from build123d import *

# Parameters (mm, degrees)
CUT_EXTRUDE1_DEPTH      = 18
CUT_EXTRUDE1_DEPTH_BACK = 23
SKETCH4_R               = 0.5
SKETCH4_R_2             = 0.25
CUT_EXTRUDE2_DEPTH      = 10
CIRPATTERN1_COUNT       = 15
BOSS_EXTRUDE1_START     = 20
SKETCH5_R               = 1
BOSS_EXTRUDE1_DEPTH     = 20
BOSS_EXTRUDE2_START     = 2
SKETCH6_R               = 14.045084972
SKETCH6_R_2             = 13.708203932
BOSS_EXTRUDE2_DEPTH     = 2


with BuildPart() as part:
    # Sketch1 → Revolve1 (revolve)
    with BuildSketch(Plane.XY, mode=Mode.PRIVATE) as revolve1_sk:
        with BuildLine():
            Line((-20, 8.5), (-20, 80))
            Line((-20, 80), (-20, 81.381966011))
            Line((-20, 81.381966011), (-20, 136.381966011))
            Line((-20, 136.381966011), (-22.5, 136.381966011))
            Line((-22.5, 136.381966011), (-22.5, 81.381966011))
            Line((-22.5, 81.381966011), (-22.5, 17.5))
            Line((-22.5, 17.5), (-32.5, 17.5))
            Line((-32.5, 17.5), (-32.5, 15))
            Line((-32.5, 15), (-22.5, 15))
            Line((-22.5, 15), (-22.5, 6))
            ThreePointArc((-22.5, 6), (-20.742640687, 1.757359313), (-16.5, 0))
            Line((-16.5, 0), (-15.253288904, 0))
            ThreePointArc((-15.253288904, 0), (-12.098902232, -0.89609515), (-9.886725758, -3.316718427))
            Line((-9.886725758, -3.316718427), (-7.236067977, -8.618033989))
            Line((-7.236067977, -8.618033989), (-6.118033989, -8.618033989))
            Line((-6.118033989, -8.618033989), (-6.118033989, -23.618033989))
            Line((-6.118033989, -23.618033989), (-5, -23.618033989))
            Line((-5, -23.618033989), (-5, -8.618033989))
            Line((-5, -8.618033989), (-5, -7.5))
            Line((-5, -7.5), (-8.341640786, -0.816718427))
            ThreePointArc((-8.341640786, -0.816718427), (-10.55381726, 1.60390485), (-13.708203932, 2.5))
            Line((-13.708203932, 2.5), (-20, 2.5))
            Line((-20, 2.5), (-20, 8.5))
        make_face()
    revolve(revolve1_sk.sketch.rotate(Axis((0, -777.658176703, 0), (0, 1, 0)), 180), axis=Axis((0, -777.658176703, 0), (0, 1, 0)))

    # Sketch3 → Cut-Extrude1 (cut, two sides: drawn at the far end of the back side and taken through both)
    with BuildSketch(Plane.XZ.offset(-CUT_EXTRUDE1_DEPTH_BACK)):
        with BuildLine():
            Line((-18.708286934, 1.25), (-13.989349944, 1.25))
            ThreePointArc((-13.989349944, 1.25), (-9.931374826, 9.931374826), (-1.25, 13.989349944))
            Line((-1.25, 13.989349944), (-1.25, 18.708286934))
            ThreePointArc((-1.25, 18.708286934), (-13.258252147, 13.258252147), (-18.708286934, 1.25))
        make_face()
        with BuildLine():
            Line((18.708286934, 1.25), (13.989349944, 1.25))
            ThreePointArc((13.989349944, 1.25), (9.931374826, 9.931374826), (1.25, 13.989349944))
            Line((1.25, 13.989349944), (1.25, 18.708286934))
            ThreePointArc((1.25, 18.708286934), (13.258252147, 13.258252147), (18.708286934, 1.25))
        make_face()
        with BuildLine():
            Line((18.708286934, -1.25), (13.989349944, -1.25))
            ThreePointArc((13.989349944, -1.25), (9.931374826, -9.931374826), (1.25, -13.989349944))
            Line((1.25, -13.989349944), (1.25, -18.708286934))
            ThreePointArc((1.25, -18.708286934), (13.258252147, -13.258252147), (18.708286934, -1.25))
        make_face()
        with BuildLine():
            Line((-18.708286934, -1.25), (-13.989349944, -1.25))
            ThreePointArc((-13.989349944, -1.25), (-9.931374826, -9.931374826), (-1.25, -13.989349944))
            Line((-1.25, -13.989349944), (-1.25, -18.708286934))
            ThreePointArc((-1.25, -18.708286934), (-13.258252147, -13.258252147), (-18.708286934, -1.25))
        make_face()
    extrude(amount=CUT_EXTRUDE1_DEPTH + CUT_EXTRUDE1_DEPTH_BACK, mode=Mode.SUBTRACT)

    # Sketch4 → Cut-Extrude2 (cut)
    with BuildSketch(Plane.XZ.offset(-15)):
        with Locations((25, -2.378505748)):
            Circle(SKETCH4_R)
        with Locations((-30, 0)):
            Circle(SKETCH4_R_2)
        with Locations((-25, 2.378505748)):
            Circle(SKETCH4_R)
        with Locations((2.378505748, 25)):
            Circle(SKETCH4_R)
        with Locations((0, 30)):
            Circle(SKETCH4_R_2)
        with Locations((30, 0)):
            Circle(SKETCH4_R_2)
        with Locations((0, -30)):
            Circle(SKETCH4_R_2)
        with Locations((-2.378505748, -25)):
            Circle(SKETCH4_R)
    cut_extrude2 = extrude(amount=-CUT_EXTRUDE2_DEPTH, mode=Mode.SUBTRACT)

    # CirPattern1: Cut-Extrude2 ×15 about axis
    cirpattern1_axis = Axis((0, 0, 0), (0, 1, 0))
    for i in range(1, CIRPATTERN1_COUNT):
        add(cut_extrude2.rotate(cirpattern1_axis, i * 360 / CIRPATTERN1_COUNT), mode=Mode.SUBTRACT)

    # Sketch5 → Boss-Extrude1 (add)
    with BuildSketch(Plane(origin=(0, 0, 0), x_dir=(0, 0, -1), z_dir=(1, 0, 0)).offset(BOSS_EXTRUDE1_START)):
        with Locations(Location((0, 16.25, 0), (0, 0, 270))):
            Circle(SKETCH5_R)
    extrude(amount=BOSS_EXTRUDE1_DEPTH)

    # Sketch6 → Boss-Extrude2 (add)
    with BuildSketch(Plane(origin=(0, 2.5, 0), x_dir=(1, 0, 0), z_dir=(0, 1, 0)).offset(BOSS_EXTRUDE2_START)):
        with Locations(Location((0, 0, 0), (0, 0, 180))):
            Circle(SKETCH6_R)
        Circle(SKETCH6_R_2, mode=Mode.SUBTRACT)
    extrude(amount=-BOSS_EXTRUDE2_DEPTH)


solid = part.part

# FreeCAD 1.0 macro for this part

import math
import FreeCAD as App
import Part
import Sketcher

V = App.Vector
Q = App.Units.Quantity

doc = App.newDocument("Part")
body = doc.addObject("PartDesign::Body", "Body")

sketch1 = doc.addObject("Sketcher::SketchObject", "Sketch")
body.addObject(sketch1)
sketch1.AttachmentSupport = (doc.XY_Plane, [""])
sketch1.MapMode = "FlatFace"
sketch1.addGeometry([
    Part.LineSegment(V(-20, 136.4, 0), V(-22.5, 136.4, 0)),
    Part.LineSegment(V(-22.5, 136.4, 0), V(-22.5, 17.5, 0)),
    Part.LineSegment(V(-22.5, 17.5, 0), V(-32.5, 17.5, 0)),
    Part.LineSegment(V(-32.5, 17.5, 0), V(-32.5, 15, 0)),
    Part.LineSegment(V(-32.5, 15, 0), V(-22.5, 15, 0)),
    Part.LineSegment(V(-22.5, 15, 0), V(-22.5, 6, 0)),
    Part.ArcOfCircle(Part.Circle(V(-16.5, 6, 0), V(0, 0, 1), 6), math.radians(180), math.radians(270)),
    Part.LineSegment(V(-16.5, 0, 0), V(-15.3, 0, 0)),
    Part.ArcOfCircle(Part.Circle(V(-15.3, -6, 0), V(0, 0, 1), 6), math.radians(27), math.radians(90)),
    Part.LineSegment(V(-9.9, -3.3, 0), V(-7.2, -8.6, 0)),
    Part.LineSegment(V(-7.2, -8.6, 0), V(-6.1, -8.6, 0)),
    Part.LineSegment(V(-6.1, -8.6, 0), V(-6.1, -23.6, 0)),
    Part.LineSegment(V(-6.1, -23.6, 0), V(-5, -23.6, 0)),
    Part.LineSegment(V(-5, -23.6, 0), V(-5, -7.5, 0)),
    Part.LineSegment(V(-5, -7.5, 0), V(-8.3, -0.8, 0)),
    Part.ArcOfCircle(Part.Circle(V(-13.7, -3.5, 0), V(0, 0, 1), 6), math.radians(27), math.radians(90)),
    Part.LineSegment(V(-13.7, 2.5, 0), V(-20, 2.5, 0)),
    Part.LineSegment(V(-20, 2.5, 0), V(-20, 136.4, 0)),
], False)
sketch1.addConstraint([
    Sketcher.Constraint("Coincident", 0, 2, 1, 1),
    Sketcher.Constraint("Coincident", 1, 2, 2, 1),
    Sketcher.Constraint("Coincident", 2, 2, 3, 1),
    Sketcher.Constraint("Coincident", 3, 2, 4, 1),
    Sketcher.Constraint("Coincident", 4, 2, 5, 1),
    Sketcher.Constraint("Tangent", 5, 2, 6, 1),
    Sketcher.Constraint("Tangent", 6, 2, 7, 1),
    Sketcher.Constraint("Tangent", 7, 2, 8, 2),
    Sketcher.Constraint("Tangent", 8, 1, 9, 1),
    Sketcher.Constraint("Coincident", 9, 2, 10, 1),
    Sketcher.Constraint("Coincident", 10, 2, 11, 1),
    Sketcher.Constraint("Coincident", 11, 2, 12, 1),
    Sketcher.Constraint("Coincident", 12, 2, 13, 1),
    Sketcher.Constraint("Coincident", 13, 2, 14, 1),
    Sketcher.Constraint("Tangent", 14, 2, 15, 1),
    Sketcher.Constraint("Tangent", 15, 2, 16, 1),
    Sketcher.Constraint("Coincident", 16, 2, 17, 1),
    Sketcher.Constraint("Coincident", 17, 2, 0, 1),
    Sketcher.Constraint("Horizontal", 0),
    Sketcher.Constraint("Vertical", 1),
    Sketcher.Constraint("Horizontal", 2),
    Sketcher.Constraint("Vertical", 3),
    Sketcher.Constraint("Horizontal", 4),
    Sketcher.Constraint("Vertical", 5),
    Sketcher.Constraint("Horizontal", 7),
    Sketcher.Constraint("Horizontal", 10),
    Sketcher.Constraint("Vertical", 11),
    Sketcher.Constraint("Horizontal", 12),
    Sketcher.Constraint("Vertical", 13),
    Sketcher.Constraint("Horizontal", 16),
    Sketcher.Constraint("Vertical", 17),
    Sketcher.Constraint("Equal", 6, 8),
    Sketcher.Constraint("Equal", 8, 15),
    Sketcher.Constraint("PointOnObject", 6, 2, -1),
    Sketcher.Constraint("Parallel", 9, 14),
    Sketcher.Constraint("Vertical", 1, 2, 4, 2),
    Sketcher.Constraint("Equal", 10, 12),
    Sketcher.Constraint("Equal", 0, 3),
    Sketcher.Constraint("Radius", 6, Q("6 mm")),
    Sketcher.Constraint("DistanceX", 2, 2, 2, 1, Q("10 mm")),
    Sketcher.Constraint("DistanceY", 5, 2, 5, 1, Q("9 mm")),
    Sketcher.Constraint("DistanceY", 11, 2, 11, 1, Q("15 mm")),
    Sketcher.Constraint("DistanceX", 0, 2, 0, 1, Q("2.5 mm")),
    Sketcher.Constraint("DistanceX", 12, 2, -1, 1, Q("5 mm")),
    Sketcher.Constraint("DistanceX", 16, 2, -1, 1, Q("20 mm")),
    Sketcher.Constraint("DistanceY", 15, 3, 1, 2, Q("21 mm")),
    Sketcher.Constraint("DistanceY", 13, 2, 15, 3, Q("4 mm")),
    Sketcher.Constraint("DistanceX", 7, 1, 7, 2, Q("1.246711 mm")),
    Sketcher.Constraint("Distance", 9, Q("5.927051 mm")),
    Sketcher.Constraint("DistanceX", 10, 1, 10, 2, Q("1.118034 mm")),
    Sketcher.Constraint("DistanceY", 1, 2, 1, 1, Q("118.881966 mm")),
])
revolution = doc.addObject("PartDesign::Revolution", "Revolution")
body.addObject(revolution)
revolution.Profile = sketch1
revolution.ReferenceAxis = (sketch1, ["V_Axis"])
revolution.Angle = 360

sketch2 = doc.addObject("Sketcher::SketchObject", "Sketch001")
body.addObject(sketch2)
sketch2.AttachmentSupport = (doc.XZ_Plane, [""])
sketch2.MapMode = "FlatFace"
sketch2.addGeometry([
    Part.LineSegment(V(-18.7, 1.2, 0), V(-14, 1.2, 0)),
    Part.ArcOfCircle(Part.Circle(V(0, 0, 0), V(0, 0, 1), 14), math.radians(95), math.radians(175)),
    Part.LineSegment(V(-1.2, 14, 0), V(-1.2, 18.7, 0)),
    Part.ArcOfCircle(Part.Circle(V(0, 0, 0), V(0, 0, 1), 18.8), math.radians(94), math.radians(176)),
    Part.LineSegment(V(14, 1.2, 0), V(18.7, 1.2, 0)),
    Part.ArcOfCircle(Part.Circle(V(0, 0, 0), V(0, 0, 1), 18.8), math.radians(4), math.radians(86)),
    Part.LineSegment(V(1.2, 18.7, 0), V(1.2, 14, 0)),
    Part.ArcOfCircle(Part.Circle(V(0, 0, 0), V(0, 0, 1), 14), math.radians(5), math.radians(85)),
    Part.LineSegment(V(18.7, -1.2, 0), V(14, -1.2, 0)),
    Part.ArcOfCircle(Part.Circle(V(0, 0, 0), V(0, 0, 1), 14), math.radians(-85), math.radians(-5)),
    Part.LineSegment(V(1.2, -14, 0), V(1.2, -18.7, 0)),
    Part.ArcOfCircle(Part.Circle(V(0, 0, 0), V(0, 0, 1), 18.8), math.radians(-86), math.radians(-4)),
    Part.LineSegment(V(-14, -1.2, 0), V(-18.7, -1.2, 0)),
    Part.ArcOfCircle(Part.Circle(V(0, 0, 0), V(0, 0, 1), 18.8), math.radians(-176), math.radians(-94)),
    Part.LineSegment(V(-1.2, -18.7, 0), V(-1.2, -14, 0)),
    Part.ArcOfCircle(Part.Circle(V(0, 0, 0), V(0, 0, 1), 14), math.radians(-175), math.radians(-95)),
], False)
sketch2.addConstraint([
    Sketcher.Constraint("Coincident", 0, 2, 1, 2),
    Sketcher.Constraint("Coincident", 1, 1, 2, 1),
    Sketcher.Constraint("Coincident", 2, 2, 3, 1),
    Sketcher.Constraint("Coincident", 3, 2, 0, 1),
    Sketcher.Constraint("Coincident", 4, 2, 5, 1),
    Sketcher.Constraint("Coincident", 5, 2, 6, 1),
    Sketcher.Constraint("Coincident", 6, 2, 7, 2),
    Sketcher.Constraint("Coincident", 7, 1, 4, 1),
    Sketcher.Constraint("Coincident", 8, 2, 9, 2),
    Sketcher.Constraint("Coincident", 9, 1, 10, 1),
    Sketcher.Constraint("Coincident", 10, 2, 11, 1),
    Sketcher.Constraint("Coincident", 11, 2, 8, 1),
    Sketcher.Constraint("Coincident", 12, 2, 13, 1),
    Sketcher.Constraint("Coincident", 13, 2, 14, 1),
    Sketcher.Constraint("Coincident", 14, 2, 15, 2),
    Sketcher.Constraint("Coincident", 15, 1, 12, 1),
    Sketcher.Constraint("Horizontal", 0),
    Sketcher.Constraint("Vertical", 2),
    Sketcher.Constraint("Horizontal", 4),
    Sketcher.Constraint("Vertical", 6),
    Sketcher.Constraint("Horizontal", 8),
    Sketcher.Constraint("Vertical", 10),
    Sketcher.Constraint("Horizontal", 12),
    Sketcher.Constraint("Vertical", 14),
    Sketcher.Constraint("Coincident", 1, 3, -1, 1),
    Sketcher.Constraint("Coincident", 3, 3, -1, 1),
    Sketcher.Constraint("Coincident", 5, 3, -1, 1),
    Sketcher.Constraint("Coincident", 7, 3, -1, 1),
    Sketcher.Constraint("Coincident", 9, 3, -1, 1),
    Sketcher.Constraint("Coincident", 11, 3, -1, 1),
    Sketcher.Constraint("Coincident", 13, 3, -1, 1),
    Sketcher.Constraint("Coincident", 15, 3, -1, 1),
    Sketcher.Constraint("Equal", 3, 5),
    Sketcher.Constraint("Equal", 1, 7),
    Sketcher.Constraint("Equal", 7, 9),
    Sketcher.Constraint("Equal", 5, 11),
    Sketcher.Constraint("Equal", 11, 13),
    Sketcher.Constraint("Equal", 9, 15),
    Sketcher.Constraint("Horizontal", 3, 2, 4, 2),
    Sketcher.Constraint("Horizontal", 2, 2, 5, 2),
    Sketcher.Constraint("Horizontal", 11, 2, 12, 2),
    Sketcher.Constraint("Horizontal", 10, 2, 13, 2),
    Sketcher.Constraint("Vertical", 7, 1, 8, 2),
    Sketcher.Constraint("Vertical", 6, 2, 9, 1),
    Sketcher.Constraint("Equal", 12, 2),
    Sketcher.Constraint("Radius", 3, Q("18.75 mm")),
    Sketcher.Constraint("DistanceX", 2, 2, 5, 2, Q("2.5 mm")),
    Sketcher.Constraint("Radius", 1, Q("14.045085 mm")),
])
pocket1 = doc.addObject("PartDesign::Pocket", "Pocket")
body.addObject(pocket1)
pocket1.Profile = sketch2
pocket1.Type = "ThroughAll"
pocket1.Midplane = True

sketch3 = doc.addObject("Sketcher::SketchObject", "Sketch002")
body.addObject(sketch3)
sketch3.AttachmentSupport = (doc.XZ_Plane, [""])
sketch3.MapMode = "FlatFace"
sketch3.AttachmentOffset = App.Placement(V(0, 0, -15), App.Rotation())
sketch3.addGeometry([
    Part.Circle(V(25, -2.38, 0), V(0, 0, 1), 0.5),
    Part.Circle(V(-30, 0, 0), V(0, 0, 1), 0.25),
    Part.Circle(V(-25, 2.38, 0), V(0, 0, 1), 0.5),
    Part.Circle(V(2.38, 25, 0), V(0, 0, 1), 0.5),
    Part.Circle(V(0, 30, 0), V(0, 0, 1), 0.25),
    Part.Circle(V(30, 0, 0), V(0, 0, 1), 0.25),
    Part.Circle(V(0, -30, 0), V(0, 0, 1), 0.25),
    Part.Circle(V(-2.38, -25, 0), V(0, 0, 1), 0.5),
], False)
sketch3.addConstraint([
    Sketcher.Constraint("Equal", 0, 2),
    Sketcher.Constraint("Equal", 2, 3),
    Sketcher.Constraint("Equal", 1, 4),
    Sketcher.Constraint("Equal", 4, 5),
    Sketcher.Constraint("Equal", 5, 6),
    Sketcher.Constraint("Equal", 3, 7),
    Sketcher.Constraint("Symmetric", 0, 3, 2, 3, -1, 1),
    Sketcher.Constraint("Symmetric", 1, 3, 5, 3, -1, 1),
    Sketcher.Constraint("Symmetric", 4, 3, 6, 3, -1, 1),
    Sketcher.Constraint("Symmetric", 3, 3, 7, 3, -1, 1),
    Sketcher.Constraint("PointOnObject", 1, 3, -1),
    Sketcher.Constraint("PointOnObject", 4, 3, -2),
    Sketcher.Constraint("Diameter", 0, Q("1 mm")),
    Sketcher.Constraint("Diameter", 1, Q("0.5 mm")),
    Sketcher.Constraint("DistanceX", -1, 1, 0, 3, Q("25 mm")),
    Sketcher.Constraint("DistanceX", 1, 3, -1, 1, Q("30 mm")),
    Sketcher.Constraint("DistanceY", -1, 1, 3, 3, Q("25 mm")),
    Sketcher.Constraint("DistanceY", -1, 1, 4, 3, Q("30 mm")),
    Sketcher.Constraint("DistanceY", 0, 3, 2, 3, Q("4.757011 mm")),
    Sketcher.Constraint("DistanceX", -1, 1, 3, 3, Q("2.378506 mm")),
])
pocket2 = doc.addObject("PartDesign::Pocket", "Pocket001")
body.addObject(pocket2)
pocket2.Profile = sketch3
pocket2.Length = 10
doc.recompute()

polarpattern = doc.addObject("PartDesign::PolarPattern", "PolarPattern")
body.addObject(polarpattern)
polarpattern.Originals = [pocket2]
polarpattern.Axis = (doc.Y_Axis, [""])
polarpattern.Angle = 360
polarpattern.Occurrences = 15
body.Tip = polarpattern

sketch4 = doc.addObject("Sketcher::SketchObject", "Sketch003")
body.addObject(sketch4)
sketch4.AttachmentSupport = (doc.YZ_Plane, [""])
sketch4.MapMode = "FlatFace"
sketch4.AttachmentOffset = App.Placement(V(0, 0, 20), App.Rotation())
sketch4.addGeometry(Part.Circle(V(16.2, 0, 0), V(0, 0, 1), 1), False)
sketch4.addConstraint([
    Sketcher.Constraint("PointOnObject", 0, 3, -1),
    Sketcher.Constraint("Diameter", 0, Q("2 mm")),
    Sketcher.Constraint("DistanceX", -1, 1, 0, 3, Q("16.25 mm")),
])
pad1 = doc.addObject("PartDesign::Pad", "Pad")
body.addObject(pad1)
pad1.Profile = sketch4
pad1.Length = 20

sketch5 = doc.addObject("Sketcher::SketchObject", "Sketch004")
body.addObject(sketch5)
sketch5.AttachmentSupport = (doc.XZ_Plane, [""])
sketch5.MapMode = "FlatFace"
sketch5.AttachmentOffset = App.Placement(V(0, 0, -4.5), App.Rotation())
sketch5.addGeometry([
    Part.Circle(V(0, 0, 0), V(0, 0, 1), 14),
    Part.Circle(V(0, 0, 0), V(0, 0, 1), 14),
], False)
sketch5.addConstraint([
    Sketcher.Constraint("Coincident", 0, 3, -1, 1),
    Sketcher.Constraint("Coincident", 1, 3, -1, 1),
    Sketcher.Constraint("Diameter", 0, Q("28.09017 mm")),
    Sketcher.Constraint("Diameter", 1, Q("27.416408 mm")),
])
pad2 = doc.addObject("PartDesign::Pad", "Pad001")
body.addObject(pad2)
pad2.Profile = sketch5
pad2.Length = 2

doc.recompute()
